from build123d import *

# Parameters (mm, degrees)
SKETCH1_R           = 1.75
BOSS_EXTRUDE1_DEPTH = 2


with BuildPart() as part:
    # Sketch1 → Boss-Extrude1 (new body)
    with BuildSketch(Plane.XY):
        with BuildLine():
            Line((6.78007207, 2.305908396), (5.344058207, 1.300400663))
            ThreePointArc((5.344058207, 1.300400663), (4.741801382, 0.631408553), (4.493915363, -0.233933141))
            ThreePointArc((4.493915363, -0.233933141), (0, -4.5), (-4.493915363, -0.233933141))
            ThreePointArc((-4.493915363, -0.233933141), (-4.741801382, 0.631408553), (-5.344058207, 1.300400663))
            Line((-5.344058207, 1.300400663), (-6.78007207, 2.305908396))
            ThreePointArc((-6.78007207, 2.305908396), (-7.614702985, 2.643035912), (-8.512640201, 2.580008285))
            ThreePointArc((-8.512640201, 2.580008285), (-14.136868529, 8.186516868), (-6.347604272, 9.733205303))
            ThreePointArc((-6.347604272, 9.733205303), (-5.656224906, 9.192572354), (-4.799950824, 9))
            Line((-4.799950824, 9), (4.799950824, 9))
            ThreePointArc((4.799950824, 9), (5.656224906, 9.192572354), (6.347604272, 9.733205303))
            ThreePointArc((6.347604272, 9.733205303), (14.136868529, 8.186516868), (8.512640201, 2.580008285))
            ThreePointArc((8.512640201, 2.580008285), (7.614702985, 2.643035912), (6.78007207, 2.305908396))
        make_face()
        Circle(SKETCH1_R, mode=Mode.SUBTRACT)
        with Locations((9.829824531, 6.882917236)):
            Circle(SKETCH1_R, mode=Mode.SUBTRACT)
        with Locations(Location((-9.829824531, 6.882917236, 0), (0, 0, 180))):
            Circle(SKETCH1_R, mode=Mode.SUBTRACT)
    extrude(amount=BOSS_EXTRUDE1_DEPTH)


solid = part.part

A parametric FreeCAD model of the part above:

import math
import FreeCAD as App
import Part
import Sketcher
from FreeCAD import Vector
Q = App.Units.Quantity

doc = App.newDocument("Part")
body = doc.addObject("PartDesign::Body", "Body")

# Sketch on XY plane
sketch1 = body.newObject("Sketcher::SketchObject", "Sketch")
sketch1.AttachmentSupport = (doc.getObject("XY_Plane"), [""])
sketch1.MapMode = "FlatFace"
sketch1.addGeometry([
    Part.LineSegment(Vector(5.344058, 1.300401, 0), Vector(6.780072, 2.305908, 0)),  # 0
    Part.ArcOfCircle(Part.Circle(Vector(7.927225, 0.667604, 0), Vector(0, 0, 1), 2), math.radians(72.979872), math.radians(125)),  # 1
    Part.ArcOfCircle(Part.Circle(Vector(9.829825, 6.882917, 0), Vector(0, 0, 1), 4.5), math.radians(-107.020128), math.radians(140.69878)),  # 2
    Part.ArcOfCircle(Part.Circle(Vector(4.799951, 11, 0), Vector(0, 0, 1), 2), math.radians(-90), math.radians(-39.30122)),  # 3
    Part.LineSegment(Vector(4.799951, 9, 0), Vector(-4.799951, 9, 0)),  # 4
    Part.ArcOfCircle(Part.Circle(Vector(-4.799951, 11, 0), Vector(0, 0, 1), 2), math.radians(-140.69878), math.radians(-90)),  # 5
    Part.ArcOfCircle(Part.Circle(Vector(-9.829825, 6.882917, 0), Vector(0, 0, 1), 4.5), math.radians(39.30122), math.radians(287.020128)),  # 6
    Part.ArcOfCircle(Part.Circle(Vector(-7.927225, 0.667604, 0), Vector(0, 0, 1), 2), math.radians(55), math.radians(107.020128)),  # 7
    Part.LineSegment(Vector(-6.780072, 2.305908, 0), Vector(-5.344058, 1.300401, 0)),  # 8
    Part.ArcOfCircle(Part.Circle(Vector(-6.491211, -0.337903, 0), Vector(0, 0, 1), 2), math.radians(2.979872), math.radians(55)),  # 9
    Part.ArcOfCircle(Part.Circle(Vector(0, 0, 0), Vector(0, 0, 1), 4.5), math.radians(-177.020128), math.radians(-2.979872)),  # 10
    Part.ArcOfCircle(Part.Circle(Vector(6.491211, -0.337903, 0), Vector(0, 0, 1), 2), math.radians(125), math.radians(177.020128)),  # 11
    Part.Circle(Vector(0, 0, 0), Vector(0, 0, 1), 1.75),  # 12
    Part.Circle(Vector(9.829825, 6.882917, 0), Vector(0, 0, 1), 1.75),  # 13
    Part.Circle(Vector(-9.829825, 6.882917, 0), Vector(0, 0, 1), 1.75),  # 14
], False)
sketch1.addConstraint([
    Sketcher.Constraint("Tangent", 0, 2, 1, 2),
    Sketcher.Constraint("Tangent", 1, 1, 2, 1),
    Sketcher.Constraint("Tangent", 2, 2, 3, 2),
    Sketcher.Constraint("Tangent", 3, 1, 4, 1),
    Sketcher.Constraint("Tangent", 4, 2, 5, 2),
    Sketcher.Constraint("Tangent", 5, 1, 6, 1),
    Sketcher.Constraint("Tangent", 6, 2, 7, 2),
    Sketcher.Constraint("Tangent", 7, 1, 8, 1),
    Sketcher.Constraint("Tangent", 8, 2, 9, 2),
    Sketcher.Constraint("Tangent", 9, 1, 10, 1),
    Sketcher.Constraint("Tangent", 10, 2, 11, 2),
    Sketcher.Constraint("Tangent", 11, 1, 0, 1),
    Sketcher.Constraint("Horizontal", 4),
    Sketcher.Constraint("Coincident", 10, 3, -1, 1),
    Sketcher.Constraint("Coincident", 12, 3, -1, 1),
    Sketcher.Constraint("Coincident", 13, 3, 2, 3),
    Sketcher.Constraint("Coincident", 14, 3, 6, 3),
    Sketcher.Constraint("Equal", 1, 3),
    Sketcher.Constraint("Equal", 3, 5),
    Sketcher.Constraint("Equal", 2, 6),
    Sketcher.Constraint("Equal", 5, 7),
    Sketcher.Constraint("Equal", 7, 9),
    Sketcher.Constraint("Equal", 6, 10),
    Sketcher.Constraint("Equal", 9, 11),
    Sketcher.Constraint("Equal", 12, 13),
    Sketcher.Constraint("Equal", 13, 14),
    Sketcher.Constraint("Symmetric", 2, 3, 6, 3, -2),
    Sketcher.Constraint("Symmetric", 0, 2, 7, 1, -2),
    Sketcher.Constraint("Radius", 1, Q("2 mm")),
    Sketcher.Constraint("Diameter", 12, Q("3.5 mm")),
    Sketcher.Constraint("Radius", 2, Q("4.5 mm")),
    Sketcher.Constraint("Angle", 0, Q("35 deg")),
    Sketcher.Constraint("DistanceY", -1, 1, 3, 3, Q("11 mm")),
    Sketcher.Constraint("DistanceX", 4, 2, 4, 1, Q("9.599902 mm")),
    Sketcher.Constraint("DistanceY", -1, 1, 8, 2, Q("1.300401 mm")),
    Sketcher.Constraint("DistanceX", 1, 3, 2, 3, Q("1.9026 mm")),
])
pad1 = body.newObject("PartDesign::Pad", "Pad")
pad1.Profile = sketch1
pad1.Length = 2

doc.recompute()
